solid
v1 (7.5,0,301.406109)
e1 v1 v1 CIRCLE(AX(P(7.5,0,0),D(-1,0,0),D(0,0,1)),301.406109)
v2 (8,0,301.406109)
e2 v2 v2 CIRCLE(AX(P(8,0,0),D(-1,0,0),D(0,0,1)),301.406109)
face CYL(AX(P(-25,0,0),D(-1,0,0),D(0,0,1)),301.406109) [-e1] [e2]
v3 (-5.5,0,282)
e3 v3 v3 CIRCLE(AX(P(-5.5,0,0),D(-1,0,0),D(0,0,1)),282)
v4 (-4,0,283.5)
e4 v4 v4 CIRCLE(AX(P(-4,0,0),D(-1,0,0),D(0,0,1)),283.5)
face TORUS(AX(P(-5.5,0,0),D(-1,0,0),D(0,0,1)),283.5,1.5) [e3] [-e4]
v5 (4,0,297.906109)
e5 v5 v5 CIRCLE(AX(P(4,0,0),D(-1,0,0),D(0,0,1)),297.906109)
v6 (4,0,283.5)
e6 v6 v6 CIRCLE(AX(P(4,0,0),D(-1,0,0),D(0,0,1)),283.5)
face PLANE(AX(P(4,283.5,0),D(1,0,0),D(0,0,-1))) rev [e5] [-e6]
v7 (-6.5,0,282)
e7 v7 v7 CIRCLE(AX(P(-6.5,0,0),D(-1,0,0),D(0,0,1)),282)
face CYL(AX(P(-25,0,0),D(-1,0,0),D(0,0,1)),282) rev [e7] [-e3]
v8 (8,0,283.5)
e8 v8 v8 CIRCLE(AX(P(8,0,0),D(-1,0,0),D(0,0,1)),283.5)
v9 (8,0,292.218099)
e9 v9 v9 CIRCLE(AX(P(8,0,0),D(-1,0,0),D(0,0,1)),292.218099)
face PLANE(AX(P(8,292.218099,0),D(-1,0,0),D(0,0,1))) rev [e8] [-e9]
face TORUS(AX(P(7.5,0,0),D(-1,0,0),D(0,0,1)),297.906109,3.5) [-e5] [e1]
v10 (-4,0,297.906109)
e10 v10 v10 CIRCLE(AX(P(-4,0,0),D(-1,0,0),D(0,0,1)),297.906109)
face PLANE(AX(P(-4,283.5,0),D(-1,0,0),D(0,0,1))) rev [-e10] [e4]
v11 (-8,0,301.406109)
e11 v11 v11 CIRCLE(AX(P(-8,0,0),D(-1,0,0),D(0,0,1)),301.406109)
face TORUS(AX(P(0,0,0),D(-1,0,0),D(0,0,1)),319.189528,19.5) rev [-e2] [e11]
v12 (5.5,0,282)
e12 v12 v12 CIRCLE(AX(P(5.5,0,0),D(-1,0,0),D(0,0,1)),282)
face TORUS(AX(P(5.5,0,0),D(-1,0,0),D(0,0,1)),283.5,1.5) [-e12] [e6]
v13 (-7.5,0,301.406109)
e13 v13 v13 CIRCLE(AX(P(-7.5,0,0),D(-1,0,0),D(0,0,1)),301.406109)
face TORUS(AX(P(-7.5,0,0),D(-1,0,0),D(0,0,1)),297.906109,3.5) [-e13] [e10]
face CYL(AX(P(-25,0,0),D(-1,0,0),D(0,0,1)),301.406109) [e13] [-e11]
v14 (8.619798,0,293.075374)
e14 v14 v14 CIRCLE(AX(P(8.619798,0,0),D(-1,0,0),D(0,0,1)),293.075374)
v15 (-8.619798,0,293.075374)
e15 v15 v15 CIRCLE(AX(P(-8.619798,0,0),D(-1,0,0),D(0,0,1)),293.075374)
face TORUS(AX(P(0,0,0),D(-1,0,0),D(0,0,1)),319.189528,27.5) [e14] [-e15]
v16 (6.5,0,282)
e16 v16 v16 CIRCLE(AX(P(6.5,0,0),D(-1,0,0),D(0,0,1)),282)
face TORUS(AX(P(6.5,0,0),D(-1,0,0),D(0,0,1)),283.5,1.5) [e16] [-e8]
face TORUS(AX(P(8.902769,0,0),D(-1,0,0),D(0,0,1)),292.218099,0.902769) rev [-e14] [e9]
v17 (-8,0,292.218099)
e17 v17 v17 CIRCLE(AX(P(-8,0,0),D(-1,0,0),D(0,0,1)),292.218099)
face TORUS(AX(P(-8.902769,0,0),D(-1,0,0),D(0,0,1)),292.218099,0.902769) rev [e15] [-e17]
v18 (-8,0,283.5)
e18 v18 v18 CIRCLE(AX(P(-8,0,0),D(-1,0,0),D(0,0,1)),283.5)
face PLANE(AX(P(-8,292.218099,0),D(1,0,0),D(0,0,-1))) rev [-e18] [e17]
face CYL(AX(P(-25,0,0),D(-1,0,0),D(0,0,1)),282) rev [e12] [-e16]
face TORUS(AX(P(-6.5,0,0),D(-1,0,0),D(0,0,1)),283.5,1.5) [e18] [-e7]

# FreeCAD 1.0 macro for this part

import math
import FreeCAD as App
import Part
import Sketcher
from FreeCAD import Vector

doc = App.newDocument("Part")
params = doc.addObject("Spreadsheet::Sheet", "Params")
for row, (alias, value) in enumerate([
    ("sketch1_radius", "1.5 mm"),
    ("sketch1_radius2", "3.5 mm"),
    ("sketch1_radius3", "19.5 mm"),
    ("sketch1_radius4", "27.5 mm"),
    ("sketch1_width", "1 mm"),
    ("revolution_angle", "360 deg"),
], start=1):
    params.set(f"A{row}", alias)
    params.set(f"B{row}", "=" + value)
    params.setAlias(f"B{row}", alias)

body = doc.addObject("PartDesign::Body", "Body")

sketch1 = body.newObject("Sketcher::SketchObject", "Sketch")
sketch1.AttachmentSupport = (doc.getObject("XY_Plane"), [""])
sketch1.MapMode = "FlatFace"
sketch1.addGeometry([
    Part.LineSegment(Vector(-8, 292.2, 0), Vector(-8, 283.5, 0)),
    Part.ArcOfCircle(Part.Circle(Vector(-6.5, 283.5, 0), Vector(0, 0, 1), 1.5), math.radians(180), math.radians(270)),
    Part.LineSegment(Vector(-6.5, 282, 0), Vector(-5.5, 282, 0)),
    Part.ArcOfCircle(Part.Circle(Vector(-5.5, 283.5, 0), Vector(0, 0, 1), 1.5), math.radians(-90), math.radians(0)),
    Part.LineSegment(Vector(-4, 283.5, 0), Vector(-4, 297.9, 0)),
    Part.ArcOfCircle(Part.Circle(Vector(-7.5, 297.9, 0), Vector(0, 0, 1), 3.5), math.radians(0), math.radians(90)),
    Part.LineSegment(Vector(-7.5, 301.4, 0), Vector(-8, 301.4, 0)),
    Part.ArcOfCircle(Part.Circle(Vector(0, 319.2, 0), Vector(0, 0, 1), 19.5), math.radians(-66), math.radians(246)),
    Part.LineSegment(Vector(8, 301.4, 0), Vector(7.5, 301.4, 0)),
    Part.ArcOfCircle(Part.Circle(Vector(7.5, 297.9, 0), Vector(0, 0, 1), 3.5), math.radians(90), math.radians(180)),
    Part.LineSegment(Vector(4, 297.9, 0), Vector(4, 283.5, 0)),
    Part.ArcOfCircle(Part.Circle(Vector(5.5, 283.5, 0), Vector(0, 0, 1), 1.5), math.radians(180), math.radians(270)),
    Part.LineSegment(Vector(5.5, 282, 0), Vector(6.5, 282, 0)),
    Part.ArcOfCircle(Part.Circle(Vector(6.5, 283.5, 0), Vector(0, 0, 1), 1.5), math.radians(-90), math.radians(0)),
    Part.LineSegment(Vector(8, 283.5, 0), Vector(8, 292.2, 0)),
    Part.ArcOfCircle(Part.Circle(Vector(8.9, 292.2, 0), Vector(0, 0, 1), 0.9), math.radians(108), math.radians(180)),
    Part.ArcOfCircle(Part.Circle(Vector(0, 319.2, 0), Vector(0, 0, 1), 27.5), math.radians(-72), math.radians(252)),
    Part.ArcOfCircle(Part.Circle(Vector(-8.9, 292.2, 0), Vector(0, 0, 1), 0.9), math.radians(0), math.radians(72)),
], False)
sketch1.addConstraint([
    Sketcher.Constraint("Tangent", 0, 2, 1, 1),
    Sketcher.Constraint("Tangent", 1, 2, 2, 1),
    Sketcher.Constraint("Tangent", 2, 2, 3, 1),
    Sketcher.Constraint("Tangent", 3, 2, 4, 1),
    Sketcher.Constraint("Tangent", 4, 2, 5, 1),
    Sketcher.Constraint("Tangent", 5, 2, 6, 1),
    Sketcher.Constraint("Coincident", 6, 2, 7, 2),
    Sketcher.Constraint("Coincident", 7, 1, 8, 1),
    Sketcher.Constraint("Tangent", 8, 2, 9, 1),
    Sketcher.Constraint("Tangent", 9, 2, 10, 1),
    Sketcher.Constraint("Tangent", 10, 2, 11, 1),
    Sketcher.Constraint("Tangent", 11, 2, 12, 1),
    Sketcher.Constraint("Tangent", 12, 2, 13, 1),
    Sketcher.Constraint("Tangent", 13, 2, 14, 1),
    Sketcher.Constraint("Tangent", 14, 2, 15, 2),
    Sketcher.Constraint("Tangent", 15, 1, 16, 1),
    Sketcher.Constraint("Tangent", 16, 2, 17, 2),
    Sketcher.Constraint("Tangent", 17, 1, 0, 1),
    Sketcher.Constraint("Vertical", 0),
    Sketcher.Constraint("Horizontal", 2),
    Sketcher.Constraint("Vertical", 4),
    Sketcher.Constraint("Horizontal", 6),
    Sketcher.Constraint("Horizontal", 8),
    Sketcher.Constraint("Vertical", 10),
    Sketcher.Constraint("Horizontal", 12),
    Sketcher.Constraint("Vertical", 14),
    Sketcher.Constraint("Coincident", 16, 3, 7, 3),
    Sketcher.Constraint("Equal", 1, 3),
    Sketcher.Constraint("Equal", 5, 9),
    Sketcher.Constraint("Equal", 3, 11),
    Sketcher.Constraint("Equal", 11, 13),
    Sketcher.Constraint("Equal", 15, 17),
    Sketcher.Constraint("Symmetric", 5, 3, 9, 3, -2),
    Sketcher.Constraint("Symmetric", 1, 3, 13, 3, -2),
    Sketcher.Constraint("PointOnObject", 7, 3, -2),
    Sketcher.Constraint("Vertical", 0, 2, 6, 2),
    Sketcher.Constraint("Radius", 1, 1.5),
    Sketcher.Constraint("Radius", 5, 3.5),
    Sketcher.Constraint("Radius", 7, 19.5),
    Sketcher.Constraint("Radius", 16, 27.5),
    Sketcher.Constraint("DistanceX", 2, 1, 2, 2, 1.0),
    Sketcher.Constraint("DistanceX", 0, 2, -1, 1, 8.0),
    Sketcher.Constraint("DistanceY", -1, 1, 1, 2, 282.0),
    Sketcher.Constraint("Radius", 15, 0.902769),
    Sketcher.Constraint("DistanceY", 0, 2, 0, 1, 8.718099),
])
sketch1.setExpression("Constraints[36]", "Params.sketch1_radius")
sketch1.setExpression("Constraints[37]", "Params.sketch1_radius2")
sketch1.setExpression("Constraints[38]", "Params.sketch1_radius3")
sketch1.setExpression("Constraints[39]", "Params.sketch1_radius4")
sketch1.setExpression("Constraints[40]", "Params.sketch1_width")
revolution = body.newObject("PartDesign::Revolution", "Revolution")
revolution.Profile = sketch1
revolution.ReferenceAxis = (sketch1, ["H_Axis"])
revolution.setExpression("Angle", "Params.revolution_angle")

doc.recompute()
